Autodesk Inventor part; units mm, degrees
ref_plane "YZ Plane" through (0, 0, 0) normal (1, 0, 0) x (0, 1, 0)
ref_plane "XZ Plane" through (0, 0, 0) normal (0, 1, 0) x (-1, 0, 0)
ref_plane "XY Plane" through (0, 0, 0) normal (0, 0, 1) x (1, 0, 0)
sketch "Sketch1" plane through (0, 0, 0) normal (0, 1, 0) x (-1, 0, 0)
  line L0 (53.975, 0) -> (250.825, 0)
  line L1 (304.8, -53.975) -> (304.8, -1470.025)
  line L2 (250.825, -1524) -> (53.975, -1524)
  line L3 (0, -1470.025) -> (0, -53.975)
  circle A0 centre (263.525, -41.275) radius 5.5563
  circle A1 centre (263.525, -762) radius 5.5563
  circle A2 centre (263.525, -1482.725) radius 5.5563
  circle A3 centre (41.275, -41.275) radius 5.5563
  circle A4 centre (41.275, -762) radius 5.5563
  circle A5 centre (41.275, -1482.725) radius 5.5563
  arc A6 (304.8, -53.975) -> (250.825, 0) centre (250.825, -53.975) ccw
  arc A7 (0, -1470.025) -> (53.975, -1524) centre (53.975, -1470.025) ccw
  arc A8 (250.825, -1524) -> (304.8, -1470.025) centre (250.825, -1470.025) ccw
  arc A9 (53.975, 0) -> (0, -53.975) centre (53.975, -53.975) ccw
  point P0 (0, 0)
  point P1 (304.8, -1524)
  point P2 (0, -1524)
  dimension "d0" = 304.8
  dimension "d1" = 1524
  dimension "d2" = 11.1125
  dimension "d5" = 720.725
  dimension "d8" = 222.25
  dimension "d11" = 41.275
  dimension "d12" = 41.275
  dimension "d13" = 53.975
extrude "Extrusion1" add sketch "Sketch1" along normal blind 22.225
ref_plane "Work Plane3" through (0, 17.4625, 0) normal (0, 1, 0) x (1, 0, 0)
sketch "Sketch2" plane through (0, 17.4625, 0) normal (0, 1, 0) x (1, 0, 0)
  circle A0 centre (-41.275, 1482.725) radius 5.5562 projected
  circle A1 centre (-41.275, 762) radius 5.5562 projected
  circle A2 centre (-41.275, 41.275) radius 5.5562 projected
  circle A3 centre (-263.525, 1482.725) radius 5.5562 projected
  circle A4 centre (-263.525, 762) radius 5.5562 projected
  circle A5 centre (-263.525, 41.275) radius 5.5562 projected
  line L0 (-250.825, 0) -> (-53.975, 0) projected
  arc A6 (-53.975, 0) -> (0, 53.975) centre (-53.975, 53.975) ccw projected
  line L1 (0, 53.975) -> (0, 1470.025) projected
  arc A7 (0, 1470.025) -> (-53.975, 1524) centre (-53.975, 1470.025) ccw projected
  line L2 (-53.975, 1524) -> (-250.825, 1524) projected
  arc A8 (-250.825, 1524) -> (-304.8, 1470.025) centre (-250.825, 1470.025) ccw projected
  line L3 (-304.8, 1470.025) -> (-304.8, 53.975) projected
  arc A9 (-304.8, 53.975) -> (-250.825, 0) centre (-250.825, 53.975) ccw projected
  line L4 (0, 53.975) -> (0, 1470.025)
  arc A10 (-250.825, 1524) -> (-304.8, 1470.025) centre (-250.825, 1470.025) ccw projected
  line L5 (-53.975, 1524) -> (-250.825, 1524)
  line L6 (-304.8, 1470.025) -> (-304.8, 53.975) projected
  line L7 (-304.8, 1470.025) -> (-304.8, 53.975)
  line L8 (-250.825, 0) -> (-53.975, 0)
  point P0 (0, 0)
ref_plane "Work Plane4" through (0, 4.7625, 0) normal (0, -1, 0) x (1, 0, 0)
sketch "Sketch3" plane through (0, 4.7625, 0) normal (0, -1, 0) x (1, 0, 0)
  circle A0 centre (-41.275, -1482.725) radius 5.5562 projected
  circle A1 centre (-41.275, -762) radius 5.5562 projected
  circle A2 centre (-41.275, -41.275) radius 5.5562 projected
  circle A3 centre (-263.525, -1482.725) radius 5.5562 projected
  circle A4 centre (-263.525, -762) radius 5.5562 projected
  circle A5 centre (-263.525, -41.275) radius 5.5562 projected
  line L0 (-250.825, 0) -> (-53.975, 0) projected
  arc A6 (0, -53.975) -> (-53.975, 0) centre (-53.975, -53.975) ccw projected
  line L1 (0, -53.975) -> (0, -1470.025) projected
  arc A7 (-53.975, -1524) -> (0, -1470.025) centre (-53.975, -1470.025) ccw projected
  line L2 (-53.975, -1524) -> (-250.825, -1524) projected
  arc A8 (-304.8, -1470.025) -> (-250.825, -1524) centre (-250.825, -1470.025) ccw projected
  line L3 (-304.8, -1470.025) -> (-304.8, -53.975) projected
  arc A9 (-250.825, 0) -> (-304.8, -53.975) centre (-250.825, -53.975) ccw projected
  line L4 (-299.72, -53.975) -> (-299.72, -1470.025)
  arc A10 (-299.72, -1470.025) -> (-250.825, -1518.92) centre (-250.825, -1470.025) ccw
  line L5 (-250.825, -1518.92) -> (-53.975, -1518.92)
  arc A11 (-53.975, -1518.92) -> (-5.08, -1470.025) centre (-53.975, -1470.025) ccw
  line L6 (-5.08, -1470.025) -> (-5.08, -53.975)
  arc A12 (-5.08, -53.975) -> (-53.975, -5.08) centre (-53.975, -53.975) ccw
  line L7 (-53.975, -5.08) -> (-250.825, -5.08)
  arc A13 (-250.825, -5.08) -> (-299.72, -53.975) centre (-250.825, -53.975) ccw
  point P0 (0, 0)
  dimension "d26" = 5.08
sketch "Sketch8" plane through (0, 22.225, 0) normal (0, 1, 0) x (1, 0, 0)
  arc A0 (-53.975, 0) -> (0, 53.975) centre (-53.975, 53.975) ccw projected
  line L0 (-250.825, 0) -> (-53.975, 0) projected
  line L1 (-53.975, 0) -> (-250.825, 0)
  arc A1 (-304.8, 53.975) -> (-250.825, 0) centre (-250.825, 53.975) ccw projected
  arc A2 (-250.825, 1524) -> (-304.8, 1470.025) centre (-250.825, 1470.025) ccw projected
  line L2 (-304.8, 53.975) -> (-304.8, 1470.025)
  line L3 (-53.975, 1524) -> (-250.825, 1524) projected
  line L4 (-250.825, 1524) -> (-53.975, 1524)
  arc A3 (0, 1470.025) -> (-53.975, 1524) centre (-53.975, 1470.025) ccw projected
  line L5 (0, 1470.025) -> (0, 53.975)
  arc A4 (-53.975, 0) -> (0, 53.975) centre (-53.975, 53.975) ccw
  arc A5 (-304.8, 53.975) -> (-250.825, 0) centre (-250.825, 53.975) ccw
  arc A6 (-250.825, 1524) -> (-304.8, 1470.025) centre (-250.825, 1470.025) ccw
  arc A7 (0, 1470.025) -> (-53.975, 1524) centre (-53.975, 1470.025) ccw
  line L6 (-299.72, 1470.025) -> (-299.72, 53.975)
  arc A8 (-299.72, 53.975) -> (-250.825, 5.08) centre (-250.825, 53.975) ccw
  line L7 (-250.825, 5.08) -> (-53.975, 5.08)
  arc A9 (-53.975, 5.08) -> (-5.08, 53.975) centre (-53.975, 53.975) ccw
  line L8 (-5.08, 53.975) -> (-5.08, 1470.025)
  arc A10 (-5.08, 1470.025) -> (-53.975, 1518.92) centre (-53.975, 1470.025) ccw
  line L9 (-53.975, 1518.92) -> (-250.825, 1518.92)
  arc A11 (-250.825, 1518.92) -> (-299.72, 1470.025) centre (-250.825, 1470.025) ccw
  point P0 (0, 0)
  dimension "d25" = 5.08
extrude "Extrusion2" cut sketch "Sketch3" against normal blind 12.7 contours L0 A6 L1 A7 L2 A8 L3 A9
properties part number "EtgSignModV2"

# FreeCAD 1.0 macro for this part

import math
import FreeCAD as App
import Part
import Sketcher
from FreeCAD import Vector
Q = App.Units.Quantity

doc = App.newDocument("Part")
params = doc.addObject("Spreadsheet::Sheet", "Params")
for row, (alias, value) in enumerate([
    ("sketch1_diameter", "0.4375 in"),
    ("sketch1_radius", "2.125 in"),
    ("pad1_length", "0.875 in"),
    ("sketch2_radius", "2.125 in"),
    ("pocket1_length", "0.5 in"),
], start=1):
    params.set(f"A{row}", alias)
    params.set(f"B{row}", "=" + value)
    params.setAlias(f"B{row}", alias)

body = doc.addObject("PartDesign::Body", "Body")

# Sketch on XZ plane
sketch1 = body.newObject("Sketcher::SketchObject", "Sketch")
sketch1.AttachmentSupport = (doc.getObject("XZ_Plane"), [""])
sketch1.MapMode = "FlatFace"
sketch1.addGeometry([
    Part.LineSegment(Vector(-251, 0, 0), Vector(-54, 0, 0)),  # 0
    Part.ArcOfCircle(Part.Circle(Vector(-54, -54, 0), Vector(0, 0, 1), 54), math.radians(0), math.radians(90)),  # 1
    Part.LineSegment(Vector(0, -54, 0), Vector(0, -1470, 0)),  # 2
    Part.ArcOfCircle(Part.Circle(Vector(-54, -1470, 0), Vector(0, 0, 1), 54), math.radians(-90), math.radians(0)),  # 3
    Part.LineSegment(Vector(-54, -1524, 0), Vector(-251, -1524, 0)),  # 4
    Part.ArcOfCircle(Part.Circle(Vector(-251, -1470, 0), Vector(0, 0, 1), 54), math.radians(180), math.radians(270)),  # 5
    Part.LineSegment(Vector(-305, -1470, 0), Vector(-305, -54, 0)),  # 6
    Part.ArcOfCircle(Part.Circle(Vector(-251, -54, 0), Vector(0, 0, 1), 54), math.radians(90), math.radians(180)),  # 7
    Part.Circle(Vector(-41, -1483, 0), Vector(0, 0, 1), 6),  # 8
    Part.Circle(Vector(-264, -1483, 0), Vector(0, 0, 1), 6),  # 9
    Part.Circle(Vector(-41, -762, 0), Vector(0, 0, 1), 6),  # 10
    Part.Circle(Vector(-41, -41, 0), Vector(0, 0, 1), 6),  # 11
    Part.Circle(Vector(-264, -762, 0), Vector(0, 0, 1), 6),  # 12
    Part.Circle(Vector(-264, -41, 0), Vector(0, 0, 1), 6),  # 13
], False)
sketch1.addConstraint([
    Sketcher.Constraint("Tangent", 0, 2, 1, 2),
    Sketcher.Constraint("Tangent", 1, 1, 2, 1),
    Sketcher.Constraint("Tangent", 2, 2, 3, 2),
    Sketcher.Constraint("Tangent", 3, 1, 4, 1),
    Sketcher.Constraint("Tangent", 4, 2, 5, 2),
    Sketcher.Constraint("Tangent", 5, 1, 6, 1),
    Sketcher.Constraint("Tangent", 6, 2, 7, 2),
    Sketcher.Constraint("Tangent", 7, 1, 0, 1),
    Sketcher.Constraint("Horizontal", 0),
    Sketcher.Constraint("Vertical", 2),
    Sketcher.Constraint("Horizontal", 4),
    Sketcher.Constraint("Vertical", 6),
    Sketcher.Constraint("Equal", 1, 3),
    Sketcher.Constraint("Equal", 3, 5),
    Sketcher.Constraint("Equal", 5, 7),
    Sketcher.Constraint("Equal", 8, 9),
    Sketcher.Constraint("Equal", 9, 10),
    Sketcher.Constraint("Equal", 10, 11),
    Sketcher.Constraint("Equal", 11, 12),
    Sketcher.Constraint("Equal", 12, 13),
    Sketcher.Constraint("PointOnObject", 0, 2, -1),
    Sketcher.Constraint("PointOnObject", 1, 1, -2),
    Sketcher.Constraint("Horizontal", 8, 3, 9, 3),
    Sketcher.Constraint("Horizontal", 10, 3, 12, 3),
    Sketcher.Constraint("Horizontal", 11, 3, 13, 3),
    Sketcher.Constraint("Vertical", 8, 3, 10, 3),
    Sketcher.Constraint("Vertical", 10, 3, 11, 3),
    Sketcher.Constraint("Vertical", 9, 3, 12, 3),
    Sketcher.Constraint("Vertical", 12, 3, 13, 3),
    Sketcher.Constraint("Diameter", 8, Q("0.4375 in")),
    Sketcher.Constraint("DistanceY", 3, 1, -1, 1, Q("60 in")),
    Sketcher.Constraint("DistanceX", 5, 1, -1, 1, Q("12 in")),
    Sketcher.Constraint("Radius", 1, Q("2.125 in")),
    Sketcher.Constraint("DistanceX", 9, 3, 8, 3, Q("8.75 in")),
    Sketcher.Constraint("DistanceX", 8, 3, -1, 1, Q("1.625 in")),
    Sketcher.Constraint("DistanceY", 10, 3, -1, 1, Q("30 in")),
    Sketcher.Constraint("DistanceY", 11, 3, -1, 1, Q("1.625 in")),
    Sketcher.Constraint("DistanceY", 8, 3, 10, 3, Q("28.375 in")),
])
sketch1.setExpression("Constraints[29]", "Params.sketch1_diameter")
sketch1.setExpression("Constraints[32]", "Params.sketch1_radius")
pad1 = body.newObject("PartDesign::Pad", "Pad")
pad1.Profile = sketch1
pad1.setExpression("Length", "Params.pad1_length")
pad1.Reversed = True

# Sketch on XZ plane
sketch2 = body.newObject("Sketcher::SketchObject", "Sketch001")
sketch2.AttachmentSupport = (doc.getObject("XZ_Plane"), [""])
sketch2.MapMode = "FlatFace"
sketch2.AttachmentOffset = App.Placement(Vector(0, 0, -0.1875 * 25.4), App.Rotation())
sketch2.addGeometry([
    Part.LineSegment(Vector(-54, 0, 0), Vector(-251, 0, 0)),  # 0
    Part.ArcOfCircle(Part.Circle(Vector(-251, -54, 0), Vector(0, 0, 1), 54), math.radians(90), math.radians(180)),  # 1
    Part.LineSegment(Vector(-305, -54, 0), Vector(-305, -1470, 0)),  # 2
    Part.ArcOfCircle(Part.Circle(Vector(-251, -1470, 0), Vector(0, 0, 1), 54), math.radians(180), math.radians(270)),  # 3
    Part.LineSegment(Vector(-251, -1524, 0), Vector(-54, -1524, 0)),  # 4
    Part.ArcOfCircle(Part.Circle(Vector(-54, -1470, 0), Vector(0, 0, 1), 54), math.radians(-90), math.radians(0)),  # 5
    Part.LineSegment(Vector(0, -1470, 0), Vector(0, -54, 0)),  # 6
    Part.ArcOfCircle(Part.Circle(Vector(-54, -54, 0), Vector(0, 0, 1), 54), math.radians(0), math.radians(90)),  # 7
    Part.LineSegment(Vector(-300, -1470, 0), Vector(-300, -54, 0)),  # 8
    Part.ArcOfCircle(Part.Circle(Vector(-251, -54, 0), Vector(0, 0, 1), 49), math.radians(90), math.radians(180)),  # 9
    Part.LineSegment(Vector(-251, -5, 0), Vector(-54, -5, 0)),  # 10
    Part.ArcOfCircle(Part.Circle(Vector(-54, -54, 0), Vector(0, 0, 1), 49), math.radians(0), math.radians(90)),  # 11
    Part.LineSegment(Vector(-5, -54, 0), Vector(-5, -1470, 0)),  # 12
    Part.ArcOfCircle(Part.Circle(Vector(-54, -1470, 0), Vector(0, 0, 1), 49), math.radians(-90), math.radians(0)),  # 13
    Part.LineSegment(Vector(-54, -1519, 0), Vector(-251, -1519, 0)),  # 14
    Part.ArcOfCircle(Part.Circle(Vector(-251, -1470, 0), Vector(0, 0, 1), 49), math.radians(180), math.radians(270)),  # 15
], False)
sketch2.addConstraint([
    Sketcher.Constraint("Tangent", 0, 2, 1, 1),
    Sketcher.Constraint("Tangent", 1, 2, 2, 1),
    Sketcher.Constraint("Tangent", 2, 2, 3, 1),
    Sketcher.Constraint("Tangent", 3, 2, 4, 1),
    Sketcher.Constraint("Tangent", 4, 2, 5, 1),
    Sketcher.Constraint("Tangent", 5, 2, 6, 1),
    Sketcher.Constraint("Tangent", 6, 2, 7, 1),
    Sketcher.Constraint("Tangent", 7, 2, 0, 1),
    Sketcher.Constraint("Tangent", 8, 2, 9, 2),
    Sketcher.Constraint("Tangent", 9, 1, 10, 1),
    Sketcher.Constraint("Tangent", 10, 2, 11, 2),
    Sketcher.Constraint("Tangent", 11, 1, 12, 1),
    Sketcher.Constraint("Tangent", 12, 2, 13, 2),
    Sketcher.Constraint("Tangent", 13, 1, 14, 1),
    Sketcher.Constraint("Tangent", 14, 2, 15, 2),
    Sketcher.Constraint("Tangent", 15, 1, 8, 1),
    Sketcher.Constraint("Horizontal", 0),
    Sketcher.Constraint("Vertical", 2),
    Sketcher.Constraint("Horizontal", 4),
    Sketcher.Constraint("Vertical", 6),
    Sketcher.Constraint("Vertical", 8),
    Sketcher.Constraint("Horizontal", 10),
    Sketcher.Constraint("Vertical", 12),
    Sketcher.Constraint("Horizontal", 14),
    Sketcher.Constraint("Coincident", 9, 3, 1, 3),
    Sketcher.Constraint("Coincident", 11, 3, 7, 3),
    Sketcher.Constraint("Coincident", 13, 3, 5, 3),
    Sketcher.Constraint("Equal", 1, 3),
    Sketcher.Constraint("Equal", 3, 5),
    Sketcher.Constraint("Equal", 5, 7),
    Sketcher.Constraint("Equal", 13, 15),
    Sketcher.Constraint("PointOnObject", 0, 2, -1),
    Sketcher.Constraint("PointOnObject", 5, 2, -2),
    Sketcher.Constraint("DistanceY", 9, 1, -1, 1, Q("0.2 in")),
    Sketcher.Constraint("DistanceX", 1, 2, -1, 1, Q("12 in")),
    Sketcher.Constraint("DistanceY", 3, 2, -1, 1, Q("60 in")),
    Sketcher.Constraint("Radius", 1, Q("2.125 in")),
])
sketch2.setExpression("Constraints[36]", "Params.sketch2_radius")
pocket1 = body.newObject("PartDesign::Pocket", "Pocket")
pocket1.Profile = sketch2
pocket1.setExpression("Length", "Params.pocket1_length")

doc.recompute()
